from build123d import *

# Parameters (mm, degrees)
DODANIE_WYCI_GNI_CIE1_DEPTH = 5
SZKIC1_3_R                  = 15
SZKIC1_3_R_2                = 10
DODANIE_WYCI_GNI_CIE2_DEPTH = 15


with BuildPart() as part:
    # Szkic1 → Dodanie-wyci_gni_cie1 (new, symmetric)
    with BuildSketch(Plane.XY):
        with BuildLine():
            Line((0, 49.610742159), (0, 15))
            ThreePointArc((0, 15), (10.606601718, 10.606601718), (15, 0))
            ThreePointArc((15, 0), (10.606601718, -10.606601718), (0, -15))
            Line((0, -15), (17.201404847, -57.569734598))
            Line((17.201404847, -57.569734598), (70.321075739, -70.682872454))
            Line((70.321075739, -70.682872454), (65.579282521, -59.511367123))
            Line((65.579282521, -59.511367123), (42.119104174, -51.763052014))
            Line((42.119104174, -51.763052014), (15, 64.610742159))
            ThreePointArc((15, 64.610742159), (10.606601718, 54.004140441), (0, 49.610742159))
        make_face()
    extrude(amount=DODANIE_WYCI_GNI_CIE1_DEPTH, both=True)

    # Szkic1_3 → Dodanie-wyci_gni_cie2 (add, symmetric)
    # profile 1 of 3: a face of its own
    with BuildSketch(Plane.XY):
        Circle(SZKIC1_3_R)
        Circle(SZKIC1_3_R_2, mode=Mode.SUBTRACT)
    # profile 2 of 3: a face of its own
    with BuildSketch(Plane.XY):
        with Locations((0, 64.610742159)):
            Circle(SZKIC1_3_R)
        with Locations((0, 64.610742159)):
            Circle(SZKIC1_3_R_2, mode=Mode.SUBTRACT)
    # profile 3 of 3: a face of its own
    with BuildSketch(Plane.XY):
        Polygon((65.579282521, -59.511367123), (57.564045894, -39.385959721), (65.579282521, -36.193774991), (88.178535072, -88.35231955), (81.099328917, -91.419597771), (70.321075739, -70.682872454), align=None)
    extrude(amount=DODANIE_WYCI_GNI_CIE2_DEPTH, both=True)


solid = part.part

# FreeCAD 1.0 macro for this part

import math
import FreeCAD as App
import Part
import Sketcher
from FreeCAD import Vector
Q = App.Units.Quantity


def add_polygon(sketch, points):
    """Adds a closed chain of lines whose ends are joined by coincident constraints."""
    first, n = sketch.GeometryCount, len(points)
    for a, b in zip(points, points[1:] + points[:1]):
        sketch.addGeometry(Part.LineSegment(App.Vector(*a, 0), App.Vector(*b, 0)), False)
    for i in range(n):
        sketch.addConstraint(Sketcher.Constraint("Coincident", first + i, 2, first + (i + 1) % n, 1))

doc = App.newDocument("Part")
params = doc.addObject("Spreadsheet::Sheet", "Params")
for row, (alias, value) in enumerate([
    ("sketch1_radius", "15 mm"),
    ("pad1_length", "10 mm"),
    ("sketch2_diameter", "30 mm"),
    ("sketch2_diameter2", "20 mm"),
    ("pad2_length", "30 mm"),
], start=1):
    params.set(f"A{row}", alias)
    params.set(f"B{row}", "=" + value)
    params.setAlias(f"B{row}", alias)

body = doc.addObject("PartDesign::Body", "Body")

sketch1 = doc.addObject("Sketcher::SketchObject", "Sketch")
body.addObject(sketch1)
sketch1.AttachmentSupport = (doc.XY_Plane, [""])
sketch1.MapMode = "FlatFace"
sketch1.addGeometry([
    Part.LineSegment(Vector(0, 50, 0), Vector(0, 15, 0)),
    Part.ArcOfCircle(Part.Circle(Vector(0, 0, 0), Vector(0, 0, 1), 15), math.radians(0), math.radians(90)),
    Part.ArcOfCircle(Part.Circle(Vector(0, 0, 0), Vector(0, 0, 1), 15), math.radians(-90), math.radians(0)),
    Part.LineSegment(Vector(0, -15, 0), Vector(17, -58, 0)),
    Part.LineSegment(Vector(17, -58, 0), Vector(70, -71, 0)),
    Part.LineSegment(Vector(70, -71, 0), Vector(66, -60, 0)),
    Part.LineSegment(Vector(66, -60, 0), Vector(42, -52, 0)),
    Part.LineSegment(Vector(42, -52, 0), Vector(15, 65, 0)),
    Part.ArcOfCircle(Part.Circle(Vector(0, 65, 0), Vector(0, 0, 1), 15), math.radians(-90), math.radians(0)),
], False)
sketch1.addConstraint([
    Sketcher.Constraint("Coincident", 0, 2, 1, 2),
    Sketcher.Constraint("Tangent", 1, 1, 2, 2),
    Sketcher.Constraint("Coincident", 2, 1, 3, 1),
    Sketcher.Constraint("Coincident", 3, 2, 4, 1),
    Sketcher.Constraint("Coincident", 4, 2, 5, 1),
    Sketcher.Constraint("Coincident", 5, 2, 6, 1),
    Sketcher.Constraint("Coincident", 6, 2, 7, 1),
    Sketcher.Constraint("Coincident", 7, 2, 8, 2),
    Sketcher.Constraint("Coincident", 8, 1, 0, 1),
    Sketcher.Constraint("Vertical", 0),
    Sketcher.Constraint("Coincident", 1, 3, -1, 1),
    Sketcher.Constraint("Equal", 1, 2),
    Sketcher.Constraint("Equal", 2, 8),
    Sketcher.Constraint("PointOnObject", 8, 3, -2),
    Sketcher.Constraint("PointOnObject", 0, 2, -2),
    Sketcher.Constraint("PointOnObject", 1, 1, -1),
    Sketcher.Constraint("PointOnObject", 2, 1, -2),
    Sketcher.Constraint("Horizontal", 8, 3, 7, 2),
    Sketcher.Constraint("Radius", 1, Q("15 mm")),
    Sketcher.Constraint("DistanceX", 3, 2, 6, 2, Q("24.917699 mm")),
    Sketcher.Constraint("Distance", 3, Q("45.91373 mm")),
    Sketcher.Constraint("Distance", 5, Q("12.136191 mm")),
    Sketcher.Constraint("DistanceY", 0, 2, 0, 1, Q("34.610742 mm")),
    Sketcher.Constraint("DistanceX", 3, 2, 4, 2, Q("53.119671 mm")),
    Sketcher.Constraint("DistanceX", 6, 2, 5, 2, Q("23.460178 mm")),
    Sketcher.Constraint("DistanceY", 4, 2, 6, 2, Q("18.91982 mm")),
    Sketcher.Constraint("Distance", 4, Q("54.714293 mm")),
    Sketcher.Constraint("Distance", 7, Q("119.491865 mm")),
])
sketch1.setExpression("Constraints[18]", "Params.sketch1_radius")
pad1 = doc.addObject("PartDesign::Pad", "Pad")
body.addObject(pad1)
pad1.Profile = sketch1
pad1.setExpression("Length", "Params.pad1_length")
pad1.Midplane = True

sketch2 = doc.addObject("Sketcher::SketchObject", "Sketch001")
body.addObject(sketch2)
sketch2.AttachmentSupport = (doc.XY_Plane, [""])
sketch2.MapMode = "FlatFace"
sketch2.addGeometry(Part.Circle(Vector(0, 0, 0), Vector(0, 0, 1), 15), False)
sketch2.addGeometry(Part.Circle(Vector(0, 0, 0), Vector(0, 0, 1), 10), False)
sketch2.addGeometry(Part.Circle(Vector(0, 65, 0), Vector(0, 0, 1), 15), False)
sketch2.addGeometry(Part.Circle(Vector(0, 65, 0), Vector(0, 0, 1), 10), False)
add_polygon(sketch2, [(58, -39), (66, -60), (70, -71), (81, -91), (88, -88), (66, -36)])
sketch2.addConstraint([
    Sketcher.Constraint("Coincident", 0, 3, -1, 1),
    Sketcher.Constraint("Coincident", 1, 3, -1, 1),
    Sketcher.Constraint("Coincident", 3, 3, 2, 3),
    Sketcher.Constraint("Equal", 0, 2),
    Sketcher.Constraint("Equal", 1, 3),
    Sketcher.Constraint("PointOnObject", 2, 3, -2),
    Sketcher.Constraint("Perpendicular", 7, 8),
    Sketcher.Constraint("Perpendicular", 4, 9),
    Sketcher.Constraint("Vertical", 4, 2, 8, 2),
    Sketcher.Constraint("Diameter", 0, Q("30 mm")),
    Sketcher.Constraint("Diameter", 1, Q("20 mm")),
    Sketcher.Constraint("Distance", 4, Q("21.66278 mm")),
    Sketcher.Constraint("Distance", 5, Q("12.136191 mm")),
    Sketcher.Constraint("Distance", 6, Q("23.370548 mm")),
    Sketcher.Constraint("Distance", 7, Q("7.715138 mm")),
    Sketcher.Constraint("DistanceX", -1, 1, 6, 2, Q("81.099329 mm")),
    Sketcher.Constraint("DistanceY", 7, 2, -1, 1, Q("88.35232 mm")),
    Sketcher.Constraint("DistanceY", 9, 2, -1, 1, Q("39.38596 mm")),
    Sketcher.Constraint("DistanceY", 4, 2, 2, 3, Q("124.122109 mm")),
    Sketcher.Constraint("DistanceY", 6, 2, 4, 2, Q("31.908231 mm")),
    Sketcher.Constraint("DistanceY", 6, 2, 7, 2, Q("3.067278 mm")),
])
sketch2.setExpression("Constraints[15]", "Params.sketch2_diameter")
sketch2.setExpression("Constraints[16]", "Params.sketch2_diameter2")
pad2 = doc.addObject("PartDesign::Pad", "Pad001")
body.addObject(pad2)
pad2.Profile = sketch2
pad2.setExpression("Length", "Params.pad2_length")
pad2.Midplane = True

doc.recompute()
